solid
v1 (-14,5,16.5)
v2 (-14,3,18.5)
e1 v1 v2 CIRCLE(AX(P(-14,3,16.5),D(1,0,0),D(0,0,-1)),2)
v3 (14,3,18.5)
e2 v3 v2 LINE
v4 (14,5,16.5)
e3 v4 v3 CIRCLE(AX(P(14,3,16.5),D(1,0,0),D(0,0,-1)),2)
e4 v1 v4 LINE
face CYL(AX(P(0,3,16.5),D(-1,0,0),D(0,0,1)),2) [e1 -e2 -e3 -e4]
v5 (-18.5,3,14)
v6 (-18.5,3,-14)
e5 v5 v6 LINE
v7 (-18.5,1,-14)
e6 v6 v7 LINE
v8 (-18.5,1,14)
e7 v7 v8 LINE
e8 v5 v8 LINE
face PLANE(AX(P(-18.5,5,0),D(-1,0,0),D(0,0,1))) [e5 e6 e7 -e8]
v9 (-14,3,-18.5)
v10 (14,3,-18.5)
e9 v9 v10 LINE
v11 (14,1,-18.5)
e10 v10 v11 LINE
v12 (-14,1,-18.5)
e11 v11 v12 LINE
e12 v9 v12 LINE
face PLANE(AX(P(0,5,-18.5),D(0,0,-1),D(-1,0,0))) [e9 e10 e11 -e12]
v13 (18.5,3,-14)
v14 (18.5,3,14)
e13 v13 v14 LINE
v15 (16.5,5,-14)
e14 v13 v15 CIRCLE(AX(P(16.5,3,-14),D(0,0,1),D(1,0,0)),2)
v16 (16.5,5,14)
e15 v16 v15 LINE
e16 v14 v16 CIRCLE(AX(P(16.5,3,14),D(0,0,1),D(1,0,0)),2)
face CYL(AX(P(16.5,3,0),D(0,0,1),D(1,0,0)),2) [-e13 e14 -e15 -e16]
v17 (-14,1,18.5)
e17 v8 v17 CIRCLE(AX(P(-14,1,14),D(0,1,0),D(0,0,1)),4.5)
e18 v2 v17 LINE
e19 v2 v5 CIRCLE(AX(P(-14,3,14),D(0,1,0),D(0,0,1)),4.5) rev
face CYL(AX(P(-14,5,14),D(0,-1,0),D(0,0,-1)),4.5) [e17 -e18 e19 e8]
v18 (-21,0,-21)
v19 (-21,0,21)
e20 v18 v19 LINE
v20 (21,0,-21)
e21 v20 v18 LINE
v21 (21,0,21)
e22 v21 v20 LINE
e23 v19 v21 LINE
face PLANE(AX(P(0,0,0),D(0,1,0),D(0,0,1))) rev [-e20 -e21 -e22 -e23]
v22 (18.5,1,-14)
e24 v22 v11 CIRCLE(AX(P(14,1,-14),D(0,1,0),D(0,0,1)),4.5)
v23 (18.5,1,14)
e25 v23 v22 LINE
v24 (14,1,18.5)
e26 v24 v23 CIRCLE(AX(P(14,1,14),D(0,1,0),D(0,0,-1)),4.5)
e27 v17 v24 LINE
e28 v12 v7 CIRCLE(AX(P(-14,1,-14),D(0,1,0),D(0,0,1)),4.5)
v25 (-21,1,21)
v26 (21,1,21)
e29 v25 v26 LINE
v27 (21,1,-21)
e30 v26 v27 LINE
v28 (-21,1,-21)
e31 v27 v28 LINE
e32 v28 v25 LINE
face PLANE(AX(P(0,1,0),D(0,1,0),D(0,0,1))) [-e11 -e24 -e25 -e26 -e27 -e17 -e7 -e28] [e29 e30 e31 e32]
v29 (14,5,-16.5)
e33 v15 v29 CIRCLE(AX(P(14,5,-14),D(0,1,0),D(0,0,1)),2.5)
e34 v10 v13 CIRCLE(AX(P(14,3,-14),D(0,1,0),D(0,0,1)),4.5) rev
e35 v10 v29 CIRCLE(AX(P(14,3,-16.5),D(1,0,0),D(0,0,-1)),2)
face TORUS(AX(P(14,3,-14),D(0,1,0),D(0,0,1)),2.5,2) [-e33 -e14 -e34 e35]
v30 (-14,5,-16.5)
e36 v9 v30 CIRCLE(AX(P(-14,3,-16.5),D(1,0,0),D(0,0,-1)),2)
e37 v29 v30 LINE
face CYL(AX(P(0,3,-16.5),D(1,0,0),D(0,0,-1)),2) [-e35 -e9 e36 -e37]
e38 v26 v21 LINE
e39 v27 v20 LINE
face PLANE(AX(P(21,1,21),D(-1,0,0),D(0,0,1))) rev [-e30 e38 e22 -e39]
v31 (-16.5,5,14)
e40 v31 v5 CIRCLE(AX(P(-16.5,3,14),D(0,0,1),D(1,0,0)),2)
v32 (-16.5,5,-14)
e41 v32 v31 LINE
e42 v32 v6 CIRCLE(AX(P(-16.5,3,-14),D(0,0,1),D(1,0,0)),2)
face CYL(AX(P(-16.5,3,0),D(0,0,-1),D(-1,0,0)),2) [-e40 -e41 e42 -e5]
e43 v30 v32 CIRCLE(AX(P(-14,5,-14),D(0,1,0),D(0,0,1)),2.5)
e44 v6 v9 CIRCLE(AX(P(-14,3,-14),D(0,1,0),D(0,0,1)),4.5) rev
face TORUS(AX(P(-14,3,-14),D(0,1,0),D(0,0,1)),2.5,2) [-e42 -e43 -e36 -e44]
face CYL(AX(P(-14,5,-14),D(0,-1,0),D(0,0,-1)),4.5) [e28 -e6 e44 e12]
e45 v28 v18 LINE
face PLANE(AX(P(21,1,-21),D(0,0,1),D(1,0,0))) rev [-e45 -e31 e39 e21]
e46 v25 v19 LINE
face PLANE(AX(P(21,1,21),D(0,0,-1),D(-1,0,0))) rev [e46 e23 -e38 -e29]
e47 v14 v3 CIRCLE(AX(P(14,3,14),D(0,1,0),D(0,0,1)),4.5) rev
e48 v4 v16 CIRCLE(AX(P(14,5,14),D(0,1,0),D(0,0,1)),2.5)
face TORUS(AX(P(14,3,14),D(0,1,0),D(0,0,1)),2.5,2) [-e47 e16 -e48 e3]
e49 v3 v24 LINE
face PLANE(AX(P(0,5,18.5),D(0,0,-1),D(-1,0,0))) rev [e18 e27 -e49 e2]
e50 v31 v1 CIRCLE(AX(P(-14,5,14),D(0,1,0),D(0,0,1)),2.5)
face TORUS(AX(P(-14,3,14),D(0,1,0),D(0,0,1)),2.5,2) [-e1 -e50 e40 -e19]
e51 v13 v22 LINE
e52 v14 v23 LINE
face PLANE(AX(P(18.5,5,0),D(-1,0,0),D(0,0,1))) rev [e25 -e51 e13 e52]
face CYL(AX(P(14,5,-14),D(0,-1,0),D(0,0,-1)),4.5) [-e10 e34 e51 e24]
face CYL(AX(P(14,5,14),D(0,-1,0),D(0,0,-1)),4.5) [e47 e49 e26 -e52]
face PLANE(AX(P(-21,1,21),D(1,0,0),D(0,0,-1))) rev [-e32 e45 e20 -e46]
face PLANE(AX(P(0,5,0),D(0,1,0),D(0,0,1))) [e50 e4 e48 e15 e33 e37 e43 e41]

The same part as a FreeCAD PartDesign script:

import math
import FreeCAD as App
import Part
import Sketcher
from FreeCAD import Vector


def edges_at(feature, points):
    """Names of the edges that pass closest to the given points."""
    edges = feature.Shape.Edges
    near = lambda p: min(range(len(edges)), key=lambda i: edges[i].distToShape(Part.Vertex(*p))[0])
    return sorted({f"Edge{near(p) + 1}" for p in points})


def add_polygon(sketch, points):
    """Adds a closed chain of lines whose ends are joined by coincident constraints."""
    first, n = sketch.GeometryCount, len(points)
    for a, b in zip(points, points[1:] + points[:1]):
        sketch.addGeometry(Part.LineSegment(App.Vector(*a, 0), App.Vector(*b, 0)), False)
    for i in range(n):
        sketch.addConstraint(Sketcher.Constraint("Coincident", first + i, 2, first + (i + 1) % n, 1))

doc = App.newDocument("Part")
body = doc.addObject("PartDesign::Body", "Body")

# Sketch on XZ plane
sketch1 = doc.addObject("Sketcher::SketchObject", "Sketch")
body.addObject(sketch1)
sketch1.AttachmentSupport = (doc.XZ_Plane, [""])
sketch1.MapMode = "FlatFace"
add_polygon(sketch1, [(-21, -21), (-21, 21), (21, 21), (21, -21)])  # lines 0-3
sketch1.addGeometry(Part.LineSegment(Vector(14, 18.5, 0), Vector(-14, 18.5, 0)), False)  # 4
sketch1.addGeometry(Part.ArcOfCircle(Part.Circle(Vector(-14, 14, 0), Vector(0, 0, 1), 4.5), math.radians(90), math.radians(180)), False)  # 5
sketch1.addGeometry(Part.LineSegment(Vector(-18.5, 14, 0), Vector(-18.5, -14, 0)), False)  # 6
sketch1.addGeometry(Part.ArcOfCircle(Part.Circle(Vector(-14, -14, 0), Vector(0, 0, 1), 4.5), math.radians(-180), math.radians(-90)), False)  # 7
sketch1.addGeometry(Part.LineSegment(Vector(-14, -18.5, 0), Vector(14, -18.5, 0)), False)  # 8
sketch1.addGeometry(Part.ArcOfCircle(Part.Circle(Vector(14, -14, 0), Vector(0, 0, 1), 4.5), math.radians(-90), math.radians(0)), False)  # 9
sketch1.addGeometry(Part.LineSegment(Vector(18.5, -14, 0), Vector(18.5, 14, 0)), False)  # 10
sketch1.addGeometry(Part.ArcOfCircle(Part.Circle(Vector(14, 14, 0), Vector(0, 0, 1), 4.5), math.radians(0), math.radians(90)), False)  # 11
sketch1.addConstraint(Sketcher.Constraint("Tangent", 4, 2, 5, 1))
sketch1.addConstraint(Sketcher.Constraint("Tangent", 5, 2, 6, 1))
sketch1.addConstraint(Sketcher.Constraint("Tangent", 6, 2, 7, 1))
sketch1.addConstraint(Sketcher.Constraint("Tangent", 7, 2, 8, 1))
sketch1.addConstraint(Sketcher.Constraint("Tangent", 8, 2, 9, 1))
sketch1.addConstraint(Sketcher.Constraint("Tangent", 9, 2, 10, 1))
sketch1.addConstraint(Sketcher.Constraint("Tangent", 10, 2, 11, 1))
sketch1.addConstraint(Sketcher.Constraint("Tangent", 11, 2, 4, 1))
sketch1.addConstraint(Sketcher.Constraint("Vertical", 0))
sketch1.addConstraint(Sketcher.Constraint("Horizontal", 1))
sketch1.addConstraint(Sketcher.Constraint("Vertical", 2))
sketch1.addConstraint(Sketcher.Constraint("Horizontal", 3))
sketch1.addConstraint(Sketcher.Constraint("Horizontal", 4))
sketch1.addConstraint(Sketcher.Constraint("Vertical", 6))
sketch1.addConstraint(Sketcher.Constraint("Horizontal", 8))
sketch1.addConstraint(Sketcher.Constraint("Vertical", 10))
sketch1.addConstraint(Sketcher.Constraint("Equal", 5, 7))
sketch1.addConstraint(Sketcher.Constraint("Equal", 7, 9))
sketch1.addConstraint(Sketcher.Constraint("Equal", 9, 11))
sketch1.addConstraint(Sketcher.Constraint("Symmetric", 5, 3, 9, 3, -1, 1))
sketch1.addConstraint(Sketcher.Constraint("Symmetric", 0, 2, 2, 2, -1, 1))
sketch1.addConstraint(Sketcher.Constraint("Equal", 3, 0))
sketch1.addConstraint(Sketcher.Constraint("Equal", 8, 6))
sketch1.addConstraint(Sketcher.Constraint("Radius", 5, 4.5))
sketch1.addConstraint(Sketcher.Constraint("DistanceX", 1, 1, 1, 2, 42.0))
sketch1.addConstraint(Sketcher.Constraint("DistanceX", 4, 2, 4, 1, 28.0))
pad1 = doc.addObject("PartDesign::Pad", "Pad")
body.addObject(pad1)
pad1.Profile = sketch1
pad1.Length = 1
pad1.Reversed = True

# Sketch on XZ plane
sketch2 = doc.addObject("Sketcher::SketchObject", "Sketch001")
body.addObject(sketch2)
sketch2.AttachmentSupport = (doc.XZ_Plane, [""])
sketch2.MapMode = "FlatFace"
sketch2.addGeometry(Part.LineSegment(Vector(18.5, 14, 0), Vector(18.5, -14, 0)), False)
sketch2.addGeometry(Part.ArcOfCircle(Part.Circle(Vector(14, -14, 0), Vector(0, 0, 1), 4.5), math.radians(-90), math.radians(0)), False)
sketch2.addGeometry(Part.LineSegment(Vector(14, -18.5, 0), Vector(-14, -18.5, 0)), False)
sketch2.addGeometry(Part.ArcOfCircle(Part.Circle(Vector(-14, -14, 0), Vector(0, 0, 1), 4.5), math.radians(-180), math.radians(-90)), False)
sketch2.addGeometry(Part.LineSegment(Vector(-18.5, -14, 0), Vector(-18.5, 14, 0)), False)
sketch2.addGeometry(Part.ArcOfCircle(Part.Circle(Vector(-14, 14, 0), Vector(0, 0, 1), 4.5), math.radians(90), math.radians(180)), False)
sketch2.addGeometry(Part.LineSegment(Vector(-14, 18.5, 0), Vector(14, 18.5, 0)), False)
sketch2.addGeometry(Part.ArcOfCircle(Part.Circle(Vector(14, 14, 0), Vector(0, 0, 1), 4.5), math.radians(0), math.radians(90)), False)
sketch2.addConstraint(Sketcher.Constraint("Tangent", 0, 2, 1, 2))
sketch2.addConstraint(Sketcher.Constraint("Tangent", 1, 1, 2, 1))
sketch2.addConstraint(Sketcher.Constraint("Tangent", 2, 2, 3, 2))
sketch2.addConstraint(Sketcher.Constraint("Tangent", 3, 1, 4, 1))
sketch2.addConstraint(Sketcher.Constraint("Tangent", 4, 2, 5, 2))
sketch2.addConstraint(Sketcher.Constraint("Tangent", 5, 1, 6, 1))
sketch2.addConstraint(Sketcher.Constraint("Tangent", 6, 2, 7, 2))
sketch2.addConstraint(Sketcher.Constraint("Tangent", 7, 1, 0, 1))
sketch2.addConstraint(Sketcher.Constraint("Vertical", 0))
sketch2.addConstraint(Sketcher.Constraint("Horizontal", 2))
sketch2.addConstraint(Sketcher.Constraint("Vertical", 4))
sketch2.addConstraint(Sketcher.Constraint("Horizontal", 6))
sketch2.addConstraint(Sketcher.Constraint("Equal", 1, 3))
sketch2.addConstraint(Sketcher.Constraint("Equal", 3, 5))
sketch2.addConstraint(Sketcher.Constraint("Equal", 5, 7))
sketch2.addConstraint(Sketcher.Constraint("Symmetric", 1, 3, 5, 3, -1, 1))
sketch2.addConstraint(Sketcher.Constraint("Equal", 6, 0))
sketch2.addConstraint(Sketcher.Constraint("Radius", 1, 4.5))
sketch2.addConstraint(Sketcher.Constraint("DistanceX", 2, 2, 2, 1, 28.0))
pad2 = doc.addObject("PartDesign::Pad", "Pad001")
body.addObject(pad2)
pad2.Profile = sketch2
pad2.Length = 5
pad2.Reversed = True
doc.recompute()

fillet = doc.addObject("PartDesign::Fillet", "Fillet")
body.addObject(fillet)
fillet.Base = (pad2, edges_at(pad2, [
    (0, 5, -18.5),
    (-18.5, 5, 0),
    (17.182, 5, 17.182),
    (18.5, 5, 0),
    (17.182, 5, -17.182),
    (-17.182, 5, -17.182),
    (-17.182, 5, 17.182),
    (0, 5, 18.5),
]))
fillet.Radius = 2

doc.recompute()
